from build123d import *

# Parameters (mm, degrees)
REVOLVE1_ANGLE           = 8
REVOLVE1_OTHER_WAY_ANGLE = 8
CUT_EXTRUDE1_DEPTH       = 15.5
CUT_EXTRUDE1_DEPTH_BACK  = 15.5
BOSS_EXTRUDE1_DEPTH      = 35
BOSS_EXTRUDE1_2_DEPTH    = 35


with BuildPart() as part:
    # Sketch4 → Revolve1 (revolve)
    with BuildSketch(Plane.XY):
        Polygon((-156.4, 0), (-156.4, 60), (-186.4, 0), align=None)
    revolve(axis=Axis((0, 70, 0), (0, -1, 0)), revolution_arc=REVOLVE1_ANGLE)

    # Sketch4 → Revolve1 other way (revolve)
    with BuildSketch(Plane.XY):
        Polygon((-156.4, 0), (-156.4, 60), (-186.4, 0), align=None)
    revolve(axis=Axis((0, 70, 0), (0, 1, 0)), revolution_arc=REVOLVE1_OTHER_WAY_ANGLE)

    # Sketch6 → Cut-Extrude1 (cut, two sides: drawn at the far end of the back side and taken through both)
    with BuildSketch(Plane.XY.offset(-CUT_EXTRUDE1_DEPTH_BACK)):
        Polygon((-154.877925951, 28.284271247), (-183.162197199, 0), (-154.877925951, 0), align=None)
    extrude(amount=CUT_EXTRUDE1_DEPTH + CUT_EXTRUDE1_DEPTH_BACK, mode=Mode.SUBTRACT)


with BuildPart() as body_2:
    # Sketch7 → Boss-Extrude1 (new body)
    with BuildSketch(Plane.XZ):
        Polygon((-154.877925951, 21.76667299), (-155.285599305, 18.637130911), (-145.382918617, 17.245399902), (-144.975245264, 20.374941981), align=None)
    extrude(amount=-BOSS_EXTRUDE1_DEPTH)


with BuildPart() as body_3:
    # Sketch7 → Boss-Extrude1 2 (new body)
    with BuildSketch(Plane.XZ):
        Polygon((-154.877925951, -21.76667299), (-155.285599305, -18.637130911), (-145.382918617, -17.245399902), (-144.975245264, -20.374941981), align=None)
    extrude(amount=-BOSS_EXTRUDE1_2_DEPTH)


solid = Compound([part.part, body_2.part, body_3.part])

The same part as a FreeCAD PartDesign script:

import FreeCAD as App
import Part
import Sketcher

V = App.Vector
Q = App.Units.Quantity

doc = App.newDocument("Part")
body = doc.addObject("PartDesign::Body", "Body")

# Sketch on XY plane
sketch1 = body.newObject("Sketcher::SketchObject", "Sketch")
sketch1.AttachmentSupport = (doc.getObject("XY_Plane"), [""])
sketch1.MapMode = "FlatFace"
sketch1.addGeometry([
    Part.LineSegment(V(-156, 0, 0), V(-156, 60, 0)),
    Part.LineSegment(V(-156, 60, 0), V(-186, 0, 0)),
    Part.LineSegment(V(-186, 0, 0), V(-156, 0, 0)),
], False)
sketch1.addConstraint([
    Sketcher.Constraint("Coincident", 0, 2, 1, 1),
    Sketcher.Constraint("Coincident", 1, 2, 2, 1),
    Sketcher.Constraint("Coincident", 2, 2, 0, 1),
    Sketcher.Constraint("Vertical", 0),
    Sketcher.Constraint("Horizontal", 2),
    Sketcher.Constraint("PointOnObject", 1, 2, -1),
    Sketcher.Constraint("DistanceX", 2, 1, 2, 2, 30.0),
    Sketcher.Constraint("DistanceY", 0, 1, 0, 2, 60.0),
    Sketcher.Constraint("DistanceX", 0, 2, -1, 1, 156.4),
])
revolution = body.newObject("PartDesign::Revolution", "Revolution")
revolution.Profile = sketch1
revolution.ReferenceAxis = (sketch1, ["V_Axis"])
revolution.Angle = 8
revolution.Reversed = True

# Sketch on XY plane
sketch2 = body.newObject("Sketcher::SketchObject", "Sketch001")
sketch2.AttachmentSupport = (doc.getObject("XY_Plane"), [""])
sketch2.MapMode = "FlatFace"
sketch2.addGeometry([
    Part.LineSegment(V(-156, 0, 0), V(-156, 60, 0)),
    Part.LineSegment(V(-156, 60, 0), V(-186, 0, 0)),
    Part.LineSegment(V(-186, 0, 0), V(-156, 0, 0)),
], False)
sketch2.addConstraint([
    Sketcher.Constraint("Coincident", 0, 2, 1, 1),
    Sketcher.Constraint("Coincident", 1, 2, 2, 1),
    Sketcher.Constraint("Coincident", 2, 2, 0, 1),
    Sketcher.Constraint("Vertical", 0),
    Sketcher.Constraint("Horizontal", 2),
    Sketcher.Constraint("PointOnObject", 1, 2, -1),
    Sketcher.Constraint("DistanceX", 2, 1, 2, 2, 30.0),
    Sketcher.Constraint("DistanceY", 0, 1, 0, 2, 60.0),
    Sketcher.Constraint("DistanceX", 0, 2, -1, 1, 156.4),
])
revolution2 = body.newObject("PartDesign::Revolution", "Revolution001")
revolution2.Profile = sketch2
revolution2.ReferenceAxis = (sketch2, ["V_Axis"])
revolution2.Angle = 8

# Sketch on XY plane
sketch3 = body.newObject("Sketcher::SketchObject", "Sketch002")
sketch3.AttachmentSupport = (doc.getObject("XY_Plane"), [""])
sketch3.MapMode = "FlatFace"
sketch3.addGeometry([
    Part.LineSegment(V(-155, 28, 0), V(-183, 0, 0)),
    Part.LineSegment(V(-183, 0, 0), V(-155, 0, 0)),
    Part.LineSegment(V(-155, 0, 0), V(-155, 28, 0)),
], False)
sketch3.addConstraint([
    Sketcher.Constraint("Coincident", 0, 2, 1, 1),
    Sketcher.Constraint("Coincident", 1, 2, 2, 1),
    Sketcher.Constraint("Coincident", 2, 2, 0, 1),
    Sketcher.Constraint("Horizontal", 1),
    Sketcher.Constraint("Vertical", 2),
    Sketcher.Constraint("PointOnObject", 0, 2, -1),
    Sketcher.Constraint("Equal", 1, 2),
    Sketcher.Constraint("Distance", 0, 40.0),
    Sketcher.Constraint("DistanceX", 0, 2, -1, 1, 183.162197),
])
pocket1 = body.newObject("PartDesign::Pocket", "Pocket")
pocket1.Profile = sketch3
pocket1.Type = "TwoLengths"
pocket1.Length = 15.5
pocket1.Length2 = 15.5
pocket1.Reversed = True
body2 = doc.addObject("PartDesign::Body", "Body001")

# Sketch on XZ plane
sketch4 = body2.newObject("Sketcher::SketchObject", "Sketch003")
sketch4.AttachmentSupport = (doc.getObject("XZ_Plane001"), [""])
sketch4.MapMode = "FlatFace"
sketch4.addGeometry([
    Part.LineSegment(V(-154.9, 21.8, 0), V(-155.3, 18.6, 0)),
    Part.LineSegment(V(-155.3, 18.6, 0), V(-145.4, 17.2, 0)),
    Part.LineSegment(V(-145.4, 17.2, 0), V(-145, 20.4, 0)),
    Part.LineSegment(V(-145, 20.4, 0), V(-154.9, 21.8, 0)),
], False)
sketch4.addConstraint([
    Sketcher.Constraint("Coincident", 0, 2, 1, 1),
    Sketcher.Constraint("Coincident", 1, 2, 2, 1),
    Sketcher.Constraint("Coincident", 2, 2, 3, 1),
    Sketcher.Constraint("Coincident", 3, 2, 0, 1),
    Sketcher.Constraint("Parallel", 0, 2),
    Sketcher.Constraint("Parallel", 1, 3),
    Sketcher.Constraint("Angle", 1, Q("-8 deg")),
    Sketcher.Constraint("Distance", 1, 10.0),
    Sketcher.Constraint("DistanceX", 0, 2, -1, 1, 155.285599),
    Sketcher.Constraint("DistanceY", -1, 1, 1, 2, 17.2454),
    Sketcher.Constraint("DistanceY", -1, 1, 2, 2, 20.374942),
    Sketcher.Constraint("Distance", 0, 3.155983),
])
pad1 = body2.newObject("PartDesign::Pad", "Pad")
pad1.Profile = sketch4
pad1.Length = 35
pad1.Reversed = True
body3 = doc.addObject("PartDesign::Body", "Body002")

# Sketch on XZ plane
sketch5 = body3.newObject("Sketcher::SketchObject", "Sketch004")
sketch5.AttachmentSupport = (doc.getObject("XZ_Plane002"), [""])
sketch5.MapMode = "FlatFace"
sketch5.addGeometry([
    Part.LineSegment(V(-155.3, -18.6, 0), V(-154.9, -21.8, 0)),
    Part.LineSegment(V(-154.9, -21.8, 0), V(-145, -20.4, 0)),
    Part.LineSegment(V(-145, -20.4, 0), V(-145.4, -17.2, 0)),
    Part.LineSegment(V(-145.4, -17.2, 0), V(-155.3, -18.6, 0)),
], False)
sketch5.addConstraint([
    Sketcher.Constraint("Coincident", 0, 2, 1, 1),
    Sketcher.Constraint("Coincident", 1, 2, 2, 1),
    Sketcher.Constraint("Coincident", 2, 2, 3, 1),
    Sketcher.Constraint("Coincident", 3, 2, 0, 1),
    Sketcher.Constraint("Parallel", 0, 2),
    Sketcher.Constraint("Parallel", 1, 3),
    Sketcher.Constraint("Angle", 1, Q("8 deg")),
    Sketcher.Constraint("Distance", 1, 10.0),
    Sketcher.Constraint("DistanceY", 2, 2, -1, 1, 17.2454),
    Sketcher.Constraint("DistanceX", 3, 2, -1, 1, 155.285599),
    Sketcher.Constraint("DistanceY", 1, 2, -1, 1, 20.374942),
    Sketcher.Constraint("Distance", 0, 3.155983),
])
pad2 = body3.newObject("PartDesign::Pad", "Pad001")
pad2.Profile = sketch5
pad2.Length = 35
pad2.Reversed = True

doc.recompute()
